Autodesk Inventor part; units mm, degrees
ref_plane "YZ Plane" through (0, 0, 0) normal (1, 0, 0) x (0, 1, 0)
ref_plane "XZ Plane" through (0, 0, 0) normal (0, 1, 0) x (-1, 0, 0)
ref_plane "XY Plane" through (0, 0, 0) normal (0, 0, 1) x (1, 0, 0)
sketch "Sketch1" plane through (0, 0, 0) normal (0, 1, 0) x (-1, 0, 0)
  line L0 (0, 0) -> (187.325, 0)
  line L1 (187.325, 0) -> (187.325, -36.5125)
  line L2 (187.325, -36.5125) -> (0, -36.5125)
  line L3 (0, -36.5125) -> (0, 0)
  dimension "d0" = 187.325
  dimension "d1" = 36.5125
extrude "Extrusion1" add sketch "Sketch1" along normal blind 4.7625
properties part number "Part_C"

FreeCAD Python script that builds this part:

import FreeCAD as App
import Part
import Sketcher
from FreeCAD import Vector
Q = App.Units.Quantity


def add_polygon(sketch, points):
    """Adds a closed chain of lines whose ends are joined by coincident constraints."""
    first, n = sketch.GeometryCount, len(points)
    for a, b in zip(points, points[1:] + points[:1]):
        sketch.addGeometry(Part.LineSegment(App.Vector(*a, 0), App.Vector(*b, 0)), False)
    for i in range(n):
        sketch.addConstraint(Sketcher.Constraint("Coincident", first + i, 2, first + (i + 1) % n, 1))

doc = App.newDocument("Part")
body = doc.addObject("PartDesign::Body", "Body")

# Sketch on XZ plane
sketch1 = body.newObject("Sketcher::SketchObject", "Sketch")
sketch1.AttachmentSupport = (doc.getObject("XZ_Plane"), [""])
sketch1.MapMode = "FlatFace"
add_polygon(sketch1, [(-187, 0), (0, 0), (0, -37), (-187, -37)])  # lines 0-3
sketch1.addConstraint([
    Sketcher.Constraint("Horizontal", 0),
    Sketcher.Constraint("Vertical", 1),
    Sketcher.Constraint("Horizontal", 2),
    Sketcher.Constraint("Vertical", 3),
    Sketcher.Constraint("Coincident", 0, 2, -1, 1),
    Sketcher.Constraint("DistanceX", 0, 1, 0, 2, Q("7.375 in")),
    Sketcher.Constraint("DistanceY", 1, 2, 1, 1, Q("1.4375 in")),
])
pad1 = body.newObject("PartDesign::Pad", "Pad")
pad1.Profile = sketch1
pad1.Length = Q("0.1875 in")
pad1.Reversed = True

doc.recompute()
